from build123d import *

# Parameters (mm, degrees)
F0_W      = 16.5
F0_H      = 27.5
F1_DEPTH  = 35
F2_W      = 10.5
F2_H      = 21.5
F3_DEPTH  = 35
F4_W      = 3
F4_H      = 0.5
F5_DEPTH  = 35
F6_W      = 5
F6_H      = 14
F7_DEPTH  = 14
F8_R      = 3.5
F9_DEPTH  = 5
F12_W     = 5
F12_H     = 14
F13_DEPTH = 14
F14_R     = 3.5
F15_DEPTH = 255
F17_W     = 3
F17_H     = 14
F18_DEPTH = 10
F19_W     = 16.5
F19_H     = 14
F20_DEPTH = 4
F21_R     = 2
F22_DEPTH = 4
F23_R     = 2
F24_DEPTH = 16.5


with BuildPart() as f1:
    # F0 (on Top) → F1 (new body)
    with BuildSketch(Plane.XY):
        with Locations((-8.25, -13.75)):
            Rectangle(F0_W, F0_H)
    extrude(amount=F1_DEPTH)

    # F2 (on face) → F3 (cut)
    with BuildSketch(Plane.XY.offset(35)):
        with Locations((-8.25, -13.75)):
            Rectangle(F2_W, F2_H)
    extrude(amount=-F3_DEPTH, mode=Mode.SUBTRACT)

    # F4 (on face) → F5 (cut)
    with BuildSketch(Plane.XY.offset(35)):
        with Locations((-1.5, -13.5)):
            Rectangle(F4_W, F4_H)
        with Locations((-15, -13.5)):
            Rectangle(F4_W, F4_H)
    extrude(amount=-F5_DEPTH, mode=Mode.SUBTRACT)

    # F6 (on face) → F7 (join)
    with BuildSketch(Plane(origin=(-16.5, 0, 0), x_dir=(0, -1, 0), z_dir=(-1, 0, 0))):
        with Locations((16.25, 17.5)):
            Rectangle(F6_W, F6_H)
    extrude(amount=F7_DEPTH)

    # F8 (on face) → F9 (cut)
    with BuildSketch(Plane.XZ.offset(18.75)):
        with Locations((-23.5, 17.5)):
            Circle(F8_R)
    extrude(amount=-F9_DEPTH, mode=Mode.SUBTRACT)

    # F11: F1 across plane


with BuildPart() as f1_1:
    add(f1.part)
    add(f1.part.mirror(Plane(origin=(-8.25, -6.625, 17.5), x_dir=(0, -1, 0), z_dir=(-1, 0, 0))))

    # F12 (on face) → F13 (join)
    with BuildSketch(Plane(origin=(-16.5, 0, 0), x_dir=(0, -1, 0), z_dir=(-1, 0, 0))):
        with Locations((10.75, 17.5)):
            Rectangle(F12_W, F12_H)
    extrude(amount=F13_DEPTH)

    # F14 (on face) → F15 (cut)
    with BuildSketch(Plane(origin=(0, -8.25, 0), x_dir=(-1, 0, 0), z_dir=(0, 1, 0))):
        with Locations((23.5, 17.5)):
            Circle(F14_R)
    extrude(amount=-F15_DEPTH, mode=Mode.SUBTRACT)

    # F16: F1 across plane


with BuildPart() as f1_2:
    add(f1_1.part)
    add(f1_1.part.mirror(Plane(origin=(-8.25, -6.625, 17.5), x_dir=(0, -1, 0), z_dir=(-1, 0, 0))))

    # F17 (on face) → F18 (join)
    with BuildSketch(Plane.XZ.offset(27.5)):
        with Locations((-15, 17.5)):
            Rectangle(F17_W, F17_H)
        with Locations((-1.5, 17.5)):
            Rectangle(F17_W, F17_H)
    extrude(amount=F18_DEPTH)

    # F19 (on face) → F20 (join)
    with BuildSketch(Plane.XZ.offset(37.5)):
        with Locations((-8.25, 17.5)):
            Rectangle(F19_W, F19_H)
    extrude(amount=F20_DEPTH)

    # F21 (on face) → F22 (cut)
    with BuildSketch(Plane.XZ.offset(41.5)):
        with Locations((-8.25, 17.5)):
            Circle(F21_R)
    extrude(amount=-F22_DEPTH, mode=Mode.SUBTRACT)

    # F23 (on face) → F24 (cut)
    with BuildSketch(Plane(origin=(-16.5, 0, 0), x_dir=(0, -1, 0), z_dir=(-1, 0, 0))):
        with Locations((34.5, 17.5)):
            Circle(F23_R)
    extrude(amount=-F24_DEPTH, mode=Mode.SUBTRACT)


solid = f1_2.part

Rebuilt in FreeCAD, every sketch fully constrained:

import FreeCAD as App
import Part
import Sketcher
from FreeCAD import Vector
Q = App.Units.Quantity


def add_polygon(sketch, points):
    """Adds a closed chain of lines whose ends are joined by coincident constraints."""
    first, n = sketch.GeometryCount, len(points)
    for a, b in zip(points, points[1:] + points[:1]):
        sketch.addGeometry(Part.LineSegment(App.Vector(*a, 0), App.Vector(*b, 0)), False)
    for i in range(n):
        sketch.addConstraint(Sketcher.Constraint("Coincident", first + i, 2, first + (i + 1) % n, 1))

doc = App.newDocument("Part")
body = doc.addObject("PartDesign::Body", "Body")
body.AllowCompound = True

sketch1 = doc.addObject("Sketcher::SketchObject", "Sketch")
body.addObject(sketch1)
sketch1.AttachmentSupport = (doc.XY_Plane, [""])
sketch1.MapMode = "FlatFace"
add_polygon(sketch1, [(-16, 0), (-16, -28), (0, -28), (0, 0)])
sketch1.addConstraint([
    Sketcher.Constraint("Vertical", 0),
    Sketcher.Constraint("Horizontal", 1),
    Sketcher.Constraint("Vertical", 2),
    Sketcher.Constraint("Horizontal", 3),
    Sketcher.Constraint("Coincident", 2, 2, -1, 1),
    Sketcher.Constraint("DistanceX", 1, 1, 1, 2, Q("16.5 mm")),
    Sketcher.Constraint("DistanceY", 0, 2, 0, 1, Q("27.5 mm")),
])
pad1 = doc.addObject("PartDesign::Pad", "Pad")
body.addObject(pad1)
pad1.Profile = sketch1
pad1.Length = 35

sketch2 = doc.addObject("Sketcher::SketchObject", "Sketch001")
body.addObject(sketch2)
sketch2.AttachmentSupport = (doc.XY_Plane, [""])
sketch2.MapMode = "FlatFace"
sketch2.AttachmentOffset = App.Placement(Vector(0, 0, 35), App.Rotation())
add_polygon(sketch2, [(-14, -3), (-14, -24), (-3, -24), (-3, -3)])
sketch2.addConstraint([
    Sketcher.Constraint("Vertical", 0),
    Sketcher.Constraint("Horizontal", 1),
    Sketcher.Constraint("Vertical", 2),
    Sketcher.Constraint("Horizontal", 3),
    Sketcher.Constraint("DistanceX", 1, 1, 1, 2, Q("10.5 mm")),
    Sketcher.Constraint("DistanceY", 0, 2, 0, 1, Q("21.5 mm")),
    Sketcher.Constraint("DistanceX", 1, 2, -1, 1, Q("3 mm")),
    Sketcher.Constraint("DistanceY", 2, 2, -1, 1, Q("3 mm")),
])
pocket1 = doc.addObject("PartDesign::Pocket", "Pocket")
body.addObject(pocket1)
pocket1.Profile = sketch2
pocket1.Length = 35

sketch3 = doc.addObject("Sketcher::SketchObject", "Sketch002")
body.addObject(sketch3)
sketch3.AttachmentSupport = (doc.XY_Plane, [""])
sketch3.MapMode = "FlatFace"
sketch3.AttachmentOffset = App.Placement(Vector(0, 0, 35), App.Rotation())
add_polygon(sketch3, [(-3, -13.2), (-3, -13.8), (0, -13.8), (0, -13.2)])
add_polygon(sketch3, [(-16.5, -13.2), (-16.5, -13.8), (-13.5, -13.8), (-13.5, -13.2)])
sketch3.addConstraint([
    Sketcher.Constraint("Vertical", 0),
    Sketcher.Constraint("Horizontal", 1),
    Sketcher.Constraint("Vertical", 2),
    Sketcher.Constraint("Horizontal", 3),
    Sketcher.Constraint("Vertical", 4),
    Sketcher.Constraint("Horizontal", 5),
    Sketcher.Constraint("Vertical", 6),
    Sketcher.Constraint("Horizontal", 7),
    Sketcher.Constraint("PointOnObject", 1, 2, -2),
    Sketcher.Constraint("Horizontal", 1, 2, 4, 2),
    Sketcher.Constraint("Horizontal", 3, 2, 6, 2),
    Sketcher.Constraint("Equal", 3, 5),
    Sketcher.Constraint("DistanceX", 1, 1, 1, 2, Q("3 mm")),
    Sketcher.Constraint("DistanceY", 0, 2, 0, 1, Q("0.5 mm")),
    Sketcher.Constraint("DistanceX", 4, 2, -1, 1, Q("16.5 mm")),
    Sketcher.Constraint("DistanceY", 0, 2, -1, 1, Q("13.75 mm")),
])
pocket2 = doc.addObject("PartDesign::Pocket", "Pocket001")
body.addObject(pocket2)
pocket2.Profile = sketch3
pocket2.Length = 35

sketch4 = doc.addObject("Sketcher::SketchObject", "Sketch003")
body.addObject(sketch4)
sketch4.AttachmentSupport = (doc.YZ_Plane, [""])
sketch4.MapMode = "FlatFace"
sketch4.AttachmentOffset = App.Placement(Vector(0, 0, -16.5), App.Rotation())
add_polygon(sketch4, [(-14, 24), (-14, 10), (-19, 10), (-19, 24)])
sketch4.addConstraint([
    Sketcher.Constraint("Vertical", 0),
    Sketcher.Constraint("Horizontal", 1),
    Sketcher.Constraint("Vertical", 2),
    Sketcher.Constraint("Horizontal", 3),
    Sketcher.Constraint("DistanceX", 1, 2, 1, 1, Q("5 mm")),
    Sketcher.Constraint("DistanceY", 0, 2, 0, 1, Q("14 mm")),
    Sketcher.Constraint("DistanceY", -1, 1, 0, 2, Q("10.5 mm")),
    Sketcher.Constraint("DistanceX", 0, 2, -1, 1, Q("13.75 mm")),
])
pad2 = doc.addObject("PartDesign::Pad", "Pad001")
body.addObject(pad2)
pad2.Profile = sketch4
pad2.Length = 14
pad2.Reversed = True

sketch5 = doc.addObject("Sketcher::SketchObject", "Sketch004")
body.addObject(sketch5)
sketch5.AttachmentSupport = (doc.XZ_Plane, [""])
sketch5.MapMode = "FlatFace"
sketch5.AttachmentOffset = App.Placement(Vector(0, 0, 18.75), App.Rotation())
sketch5.addGeometry(Part.Circle(Vector(-23.5, 17.5, 0), Vector(0, 0, 1), 3.5), False)
sketch5.addConstraint([
    Sketcher.Constraint("Diameter", 0, Q("7 mm")),
    Sketcher.Constraint("DistanceX", 0, 3, -1, 1, Q("23.5 mm")),
    Sketcher.Constraint("DistanceY", -1, 1, 0, 3, Q("17.5 mm")),
])
pocket3 = doc.addObject("PartDesign::Pocket", "Pocket002")
body.addObject(pocket3)
pocket3.Profile = sketch5
pocket3.Length = 5
body2 = doc.addObject("PartDesign::Body", "Body001")
body2.AllowCompound = True
doc.recompute()

body2.BaseFeature = body
doc.recompute()

mirroring = doc.addObject("Part::Mirroring", "Mirroring")
mirroring.Source = body
mirroring.Base = Vector(-8.25, -6.625, 17.5)
mirroring.Normal = Vector(-1, 0, 0)
body3 = doc.addObject("PartDesign::Body", "Body002")
body3.BaseFeature = mirroring
boolean = doc.addObject("PartDesign::Boolean", "Boolean")
body2.addObject(boolean)
boolean.Type = "Fuse"
boolean.addObjects([body3])
doc.recompute()

sketch6 = doc.addObject("Sketcher::SketchObject", "Sketch005")
body2.addObject(sketch6)
sketch6.AttachmentSupport = (doc.getObject("YZ_Plane001"), [""])
sketch6.MapMode = "FlatFace"
sketch6.AttachmentOffset = App.Placement(Vector(0, 0, -16.5), App.Rotation())
add_polygon(sketch6, [(-8, 24), (-8, 10), (-13, 10), (-13, 24)])
sketch6.addConstraint([
    Sketcher.Constraint("Vertical", 0),
    Sketcher.Constraint("Horizontal", 1),
    Sketcher.Constraint("Vertical", 2),
    Sketcher.Constraint("Horizontal", 3),
    Sketcher.Constraint("DistanceX", 1, 2, 1, 1, Q("5 mm")),
    Sketcher.Constraint("DistanceY", 0, 2, 0, 1, Q("14 mm")),
    Sketcher.Constraint("DistanceY", -1, 1, 0, 2, Q("10.5 mm")),
    Sketcher.Constraint("DistanceX", 0, 2, -1, 1, Q("8.25 mm")),
])
pad3 = doc.addObject("PartDesign::Pad", "Pad002")
body2.addObject(pad3)
pad3.Profile = sketch6
pad3.Length = 14
pad3.Reversed = True

sketch7 = doc.addObject("Sketcher::SketchObject", "Sketch006")
body2.addObject(sketch7)
sketch7.AttachmentSupport = (doc.getObject("XZ_Plane001"), [""])
sketch7.MapMode = "FlatFace"
sketch7.AttachmentOffset = App.Placement(Vector(0, 0, 8.25), App.Rotation())
sketch7.addGeometry(Part.Circle(Vector(-23.5, 17.5, 0), Vector(0, 0, 1), 3.5), False)
sketch7.addConstraint([
    Sketcher.Constraint("Diameter", 0, Q("7 mm")),
    Sketcher.Constraint("DistanceX", 0, 3, -1, 1, Q("23.5 mm")),
    Sketcher.Constraint("DistanceY", -1, 1, 0, 3, Q("17.5 mm")),
])
pocket4 = doc.addObject("PartDesign::Pocket", "Pocket003")
body2.addObject(pocket4)
pocket4.Profile = sketch7
pocket4.Length = 255
pocket4.Reversed = True
body4 = doc.addObject("PartDesign::Body", "Body003")
body4.AllowCompound = True
doc.recompute()

body4.BaseFeature = body2
doc.recompute()

mirroring2 = doc.addObject("Part::Mirroring", "Mirroring001")
mirroring2.Source = body2
mirroring2.Base = Vector(-8.25, -6.625, 17.5)
mirroring2.Normal = Vector(-1, 0, 0)
body5 = doc.addObject("PartDesign::Body", "Body004")
body5.BaseFeature = mirroring2
boolean2 = doc.addObject("PartDesign::Boolean", "Boolean001")
body4.addObject(boolean2)
boolean2.Type = "Fuse"
boolean2.addObjects([body5])
doc.recompute()

sketch8 = doc.addObject("Sketcher::SketchObject", "Sketch007")
body4.addObject(sketch8)
sketch8.AttachmentSupport = (doc.getObject("XZ_Plane003"), [""])
sketch8.MapMode = "FlatFace"
sketch8.AttachmentOffset = App.Placement(Vector(0, 0, 27.5), App.Rotation())
add_polygon(sketch8, [(-16.5, 24.5), (-16.5, 10.5), (-13.5, 10.5), (-13.5, 24.5)])
add_polygon(sketch8, [(-3, 24.5), (-3, 10.5), (0, 10.5), (0, 24.5)])
sketch8.addConstraint([
    Sketcher.Constraint("Vertical", 0),
    Sketcher.Constraint("Horizontal", 1),
    Sketcher.Constraint("Vertical", 2),
    Sketcher.Constraint("Horizontal", 3),
    Sketcher.Constraint("Vertical", 4),
    Sketcher.Constraint("Horizontal", 5),
    Sketcher.Constraint("Vertical", 6),
    Sketcher.Constraint("Horizontal", 7),
    Sketcher.Constraint("PointOnObject", 5, 2, -2),
    Sketcher.Constraint("Horizontal", 1, 2, 4, 2),
    Sketcher.Constraint("Horizontal", 3, 2, 6, 2),
    Sketcher.Constraint("Equal", 3, 5),
    Sketcher.Constraint("DistanceX", 1, 1, 1, 2, Q("3 mm")),
    Sketcher.Constraint("DistanceY", 0, 2, 0, 1, Q("14 mm")),
    Sketcher.Constraint("DistanceX", 0, 2, -1, 1, Q("16.5 mm")),
    Sketcher.Constraint("DistanceY", -1, 1, 0, 2, Q("10.5 mm")),
])
pad4 = doc.addObject("PartDesign::Pad", "Pad003")
body4.addObject(pad4)
pad4.Profile = sketch8
pad4.Length = 10

sketch9 = doc.addObject("Sketcher::SketchObject", "Sketch008")
body4.addObject(sketch9)
sketch9.AttachmentSupport = (doc.getObject("XZ_Plane003"), [""])
sketch9.MapMode = "FlatFace"
sketch9.AttachmentOffset = App.Placement(Vector(0, 0, 37.5), App.Rotation())
add_polygon(sketch9, [(-16, 24), (-16, 10), (0, 10), (0, 24)])
sketch9.addConstraint([
    Sketcher.Constraint("Vertical", 0),
    Sketcher.Constraint("Horizontal", 1),
    Sketcher.Constraint("Vertical", 2),
    Sketcher.Constraint("Horizontal", 3),
    Sketcher.Constraint("PointOnObject", 1, 2, -2),
    Sketcher.Constraint("DistanceY", 0, 2, 0, 1, Q("14 mm")),
    Sketcher.Constraint("DistanceX", 1, 1, 1, 2, Q("16.5 mm")),
    Sketcher.Constraint("DistanceY", -1, 1, 0, 2, Q("10.5 mm")),
])
pad5 = doc.addObject("PartDesign::Pad", "Pad004")
body4.addObject(pad5)
pad5.Profile = sketch9
pad5.Length = 4

sketch10 = doc.addObject("Sketcher::SketchObject", "Sketch009")
body4.addObject(sketch10)
sketch10.AttachmentSupport = (doc.getObject("XZ_Plane003"), [""])
sketch10.MapMode = "FlatFace"
sketch10.AttachmentOffset = App.Placement(Vector(0, 0, 41.5), App.Rotation())
sketch10.addGeometry(Part.Circle(Vector(-8.2, 17.5, 0), Vector(0, 0, 1), 2), False)
sketch10.addConstraint([
    Sketcher.Constraint("Diameter", 0, Q("4 mm")),
    Sketcher.Constraint("DistanceY", -1, 1, 0, 3, Q("17.5 mm")),
    Sketcher.Constraint("DistanceX", 0, 3, -1, 1, Q("8.25 mm")),
])
pocket5 = doc.addObject("PartDesign::Pocket", "Pocket004")
body4.addObject(pocket5)
pocket5.Profile = sketch10
pocket5.Length = 4

sketch11 = doc.addObject("Sketcher::SketchObject", "Sketch010")
body4.addObject(sketch11)
sketch11.AttachmentSupport = (doc.getObject("YZ_Plane003"), [""])
sketch11.MapMode = "FlatFace"
sketch11.AttachmentOffset = App.Placement(Vector(0, 0, -16.5), App.Rotation())
sketch11.addGeometry(Part.Circle(Vector(-34.5, 17.5, 0), Vector(0, 0, 1), 2), False)
sketch11.addConstraint([
    Sketcher.Constraint("Diameter", 0, Q("4 mm")),
    Sketcher.Constraint("DistanceX", 0, 3, -1, 1, Q("34.5 mm")),
    Sketcher.Constraint("DistanceY", -1, 1, 0, 3, Q("17.5 mm")),
])
pocket6 = doc.addObject("PartDesign::Pocket", "Pocket005")
body4.addObject(pocket6)
pocket6.Profile = sketch11
pocket6.Length = 16.5
pocket6.Reversed = True
mirroring.Visibility = False
mirroring2.Visibility = False

doc.recompute()
